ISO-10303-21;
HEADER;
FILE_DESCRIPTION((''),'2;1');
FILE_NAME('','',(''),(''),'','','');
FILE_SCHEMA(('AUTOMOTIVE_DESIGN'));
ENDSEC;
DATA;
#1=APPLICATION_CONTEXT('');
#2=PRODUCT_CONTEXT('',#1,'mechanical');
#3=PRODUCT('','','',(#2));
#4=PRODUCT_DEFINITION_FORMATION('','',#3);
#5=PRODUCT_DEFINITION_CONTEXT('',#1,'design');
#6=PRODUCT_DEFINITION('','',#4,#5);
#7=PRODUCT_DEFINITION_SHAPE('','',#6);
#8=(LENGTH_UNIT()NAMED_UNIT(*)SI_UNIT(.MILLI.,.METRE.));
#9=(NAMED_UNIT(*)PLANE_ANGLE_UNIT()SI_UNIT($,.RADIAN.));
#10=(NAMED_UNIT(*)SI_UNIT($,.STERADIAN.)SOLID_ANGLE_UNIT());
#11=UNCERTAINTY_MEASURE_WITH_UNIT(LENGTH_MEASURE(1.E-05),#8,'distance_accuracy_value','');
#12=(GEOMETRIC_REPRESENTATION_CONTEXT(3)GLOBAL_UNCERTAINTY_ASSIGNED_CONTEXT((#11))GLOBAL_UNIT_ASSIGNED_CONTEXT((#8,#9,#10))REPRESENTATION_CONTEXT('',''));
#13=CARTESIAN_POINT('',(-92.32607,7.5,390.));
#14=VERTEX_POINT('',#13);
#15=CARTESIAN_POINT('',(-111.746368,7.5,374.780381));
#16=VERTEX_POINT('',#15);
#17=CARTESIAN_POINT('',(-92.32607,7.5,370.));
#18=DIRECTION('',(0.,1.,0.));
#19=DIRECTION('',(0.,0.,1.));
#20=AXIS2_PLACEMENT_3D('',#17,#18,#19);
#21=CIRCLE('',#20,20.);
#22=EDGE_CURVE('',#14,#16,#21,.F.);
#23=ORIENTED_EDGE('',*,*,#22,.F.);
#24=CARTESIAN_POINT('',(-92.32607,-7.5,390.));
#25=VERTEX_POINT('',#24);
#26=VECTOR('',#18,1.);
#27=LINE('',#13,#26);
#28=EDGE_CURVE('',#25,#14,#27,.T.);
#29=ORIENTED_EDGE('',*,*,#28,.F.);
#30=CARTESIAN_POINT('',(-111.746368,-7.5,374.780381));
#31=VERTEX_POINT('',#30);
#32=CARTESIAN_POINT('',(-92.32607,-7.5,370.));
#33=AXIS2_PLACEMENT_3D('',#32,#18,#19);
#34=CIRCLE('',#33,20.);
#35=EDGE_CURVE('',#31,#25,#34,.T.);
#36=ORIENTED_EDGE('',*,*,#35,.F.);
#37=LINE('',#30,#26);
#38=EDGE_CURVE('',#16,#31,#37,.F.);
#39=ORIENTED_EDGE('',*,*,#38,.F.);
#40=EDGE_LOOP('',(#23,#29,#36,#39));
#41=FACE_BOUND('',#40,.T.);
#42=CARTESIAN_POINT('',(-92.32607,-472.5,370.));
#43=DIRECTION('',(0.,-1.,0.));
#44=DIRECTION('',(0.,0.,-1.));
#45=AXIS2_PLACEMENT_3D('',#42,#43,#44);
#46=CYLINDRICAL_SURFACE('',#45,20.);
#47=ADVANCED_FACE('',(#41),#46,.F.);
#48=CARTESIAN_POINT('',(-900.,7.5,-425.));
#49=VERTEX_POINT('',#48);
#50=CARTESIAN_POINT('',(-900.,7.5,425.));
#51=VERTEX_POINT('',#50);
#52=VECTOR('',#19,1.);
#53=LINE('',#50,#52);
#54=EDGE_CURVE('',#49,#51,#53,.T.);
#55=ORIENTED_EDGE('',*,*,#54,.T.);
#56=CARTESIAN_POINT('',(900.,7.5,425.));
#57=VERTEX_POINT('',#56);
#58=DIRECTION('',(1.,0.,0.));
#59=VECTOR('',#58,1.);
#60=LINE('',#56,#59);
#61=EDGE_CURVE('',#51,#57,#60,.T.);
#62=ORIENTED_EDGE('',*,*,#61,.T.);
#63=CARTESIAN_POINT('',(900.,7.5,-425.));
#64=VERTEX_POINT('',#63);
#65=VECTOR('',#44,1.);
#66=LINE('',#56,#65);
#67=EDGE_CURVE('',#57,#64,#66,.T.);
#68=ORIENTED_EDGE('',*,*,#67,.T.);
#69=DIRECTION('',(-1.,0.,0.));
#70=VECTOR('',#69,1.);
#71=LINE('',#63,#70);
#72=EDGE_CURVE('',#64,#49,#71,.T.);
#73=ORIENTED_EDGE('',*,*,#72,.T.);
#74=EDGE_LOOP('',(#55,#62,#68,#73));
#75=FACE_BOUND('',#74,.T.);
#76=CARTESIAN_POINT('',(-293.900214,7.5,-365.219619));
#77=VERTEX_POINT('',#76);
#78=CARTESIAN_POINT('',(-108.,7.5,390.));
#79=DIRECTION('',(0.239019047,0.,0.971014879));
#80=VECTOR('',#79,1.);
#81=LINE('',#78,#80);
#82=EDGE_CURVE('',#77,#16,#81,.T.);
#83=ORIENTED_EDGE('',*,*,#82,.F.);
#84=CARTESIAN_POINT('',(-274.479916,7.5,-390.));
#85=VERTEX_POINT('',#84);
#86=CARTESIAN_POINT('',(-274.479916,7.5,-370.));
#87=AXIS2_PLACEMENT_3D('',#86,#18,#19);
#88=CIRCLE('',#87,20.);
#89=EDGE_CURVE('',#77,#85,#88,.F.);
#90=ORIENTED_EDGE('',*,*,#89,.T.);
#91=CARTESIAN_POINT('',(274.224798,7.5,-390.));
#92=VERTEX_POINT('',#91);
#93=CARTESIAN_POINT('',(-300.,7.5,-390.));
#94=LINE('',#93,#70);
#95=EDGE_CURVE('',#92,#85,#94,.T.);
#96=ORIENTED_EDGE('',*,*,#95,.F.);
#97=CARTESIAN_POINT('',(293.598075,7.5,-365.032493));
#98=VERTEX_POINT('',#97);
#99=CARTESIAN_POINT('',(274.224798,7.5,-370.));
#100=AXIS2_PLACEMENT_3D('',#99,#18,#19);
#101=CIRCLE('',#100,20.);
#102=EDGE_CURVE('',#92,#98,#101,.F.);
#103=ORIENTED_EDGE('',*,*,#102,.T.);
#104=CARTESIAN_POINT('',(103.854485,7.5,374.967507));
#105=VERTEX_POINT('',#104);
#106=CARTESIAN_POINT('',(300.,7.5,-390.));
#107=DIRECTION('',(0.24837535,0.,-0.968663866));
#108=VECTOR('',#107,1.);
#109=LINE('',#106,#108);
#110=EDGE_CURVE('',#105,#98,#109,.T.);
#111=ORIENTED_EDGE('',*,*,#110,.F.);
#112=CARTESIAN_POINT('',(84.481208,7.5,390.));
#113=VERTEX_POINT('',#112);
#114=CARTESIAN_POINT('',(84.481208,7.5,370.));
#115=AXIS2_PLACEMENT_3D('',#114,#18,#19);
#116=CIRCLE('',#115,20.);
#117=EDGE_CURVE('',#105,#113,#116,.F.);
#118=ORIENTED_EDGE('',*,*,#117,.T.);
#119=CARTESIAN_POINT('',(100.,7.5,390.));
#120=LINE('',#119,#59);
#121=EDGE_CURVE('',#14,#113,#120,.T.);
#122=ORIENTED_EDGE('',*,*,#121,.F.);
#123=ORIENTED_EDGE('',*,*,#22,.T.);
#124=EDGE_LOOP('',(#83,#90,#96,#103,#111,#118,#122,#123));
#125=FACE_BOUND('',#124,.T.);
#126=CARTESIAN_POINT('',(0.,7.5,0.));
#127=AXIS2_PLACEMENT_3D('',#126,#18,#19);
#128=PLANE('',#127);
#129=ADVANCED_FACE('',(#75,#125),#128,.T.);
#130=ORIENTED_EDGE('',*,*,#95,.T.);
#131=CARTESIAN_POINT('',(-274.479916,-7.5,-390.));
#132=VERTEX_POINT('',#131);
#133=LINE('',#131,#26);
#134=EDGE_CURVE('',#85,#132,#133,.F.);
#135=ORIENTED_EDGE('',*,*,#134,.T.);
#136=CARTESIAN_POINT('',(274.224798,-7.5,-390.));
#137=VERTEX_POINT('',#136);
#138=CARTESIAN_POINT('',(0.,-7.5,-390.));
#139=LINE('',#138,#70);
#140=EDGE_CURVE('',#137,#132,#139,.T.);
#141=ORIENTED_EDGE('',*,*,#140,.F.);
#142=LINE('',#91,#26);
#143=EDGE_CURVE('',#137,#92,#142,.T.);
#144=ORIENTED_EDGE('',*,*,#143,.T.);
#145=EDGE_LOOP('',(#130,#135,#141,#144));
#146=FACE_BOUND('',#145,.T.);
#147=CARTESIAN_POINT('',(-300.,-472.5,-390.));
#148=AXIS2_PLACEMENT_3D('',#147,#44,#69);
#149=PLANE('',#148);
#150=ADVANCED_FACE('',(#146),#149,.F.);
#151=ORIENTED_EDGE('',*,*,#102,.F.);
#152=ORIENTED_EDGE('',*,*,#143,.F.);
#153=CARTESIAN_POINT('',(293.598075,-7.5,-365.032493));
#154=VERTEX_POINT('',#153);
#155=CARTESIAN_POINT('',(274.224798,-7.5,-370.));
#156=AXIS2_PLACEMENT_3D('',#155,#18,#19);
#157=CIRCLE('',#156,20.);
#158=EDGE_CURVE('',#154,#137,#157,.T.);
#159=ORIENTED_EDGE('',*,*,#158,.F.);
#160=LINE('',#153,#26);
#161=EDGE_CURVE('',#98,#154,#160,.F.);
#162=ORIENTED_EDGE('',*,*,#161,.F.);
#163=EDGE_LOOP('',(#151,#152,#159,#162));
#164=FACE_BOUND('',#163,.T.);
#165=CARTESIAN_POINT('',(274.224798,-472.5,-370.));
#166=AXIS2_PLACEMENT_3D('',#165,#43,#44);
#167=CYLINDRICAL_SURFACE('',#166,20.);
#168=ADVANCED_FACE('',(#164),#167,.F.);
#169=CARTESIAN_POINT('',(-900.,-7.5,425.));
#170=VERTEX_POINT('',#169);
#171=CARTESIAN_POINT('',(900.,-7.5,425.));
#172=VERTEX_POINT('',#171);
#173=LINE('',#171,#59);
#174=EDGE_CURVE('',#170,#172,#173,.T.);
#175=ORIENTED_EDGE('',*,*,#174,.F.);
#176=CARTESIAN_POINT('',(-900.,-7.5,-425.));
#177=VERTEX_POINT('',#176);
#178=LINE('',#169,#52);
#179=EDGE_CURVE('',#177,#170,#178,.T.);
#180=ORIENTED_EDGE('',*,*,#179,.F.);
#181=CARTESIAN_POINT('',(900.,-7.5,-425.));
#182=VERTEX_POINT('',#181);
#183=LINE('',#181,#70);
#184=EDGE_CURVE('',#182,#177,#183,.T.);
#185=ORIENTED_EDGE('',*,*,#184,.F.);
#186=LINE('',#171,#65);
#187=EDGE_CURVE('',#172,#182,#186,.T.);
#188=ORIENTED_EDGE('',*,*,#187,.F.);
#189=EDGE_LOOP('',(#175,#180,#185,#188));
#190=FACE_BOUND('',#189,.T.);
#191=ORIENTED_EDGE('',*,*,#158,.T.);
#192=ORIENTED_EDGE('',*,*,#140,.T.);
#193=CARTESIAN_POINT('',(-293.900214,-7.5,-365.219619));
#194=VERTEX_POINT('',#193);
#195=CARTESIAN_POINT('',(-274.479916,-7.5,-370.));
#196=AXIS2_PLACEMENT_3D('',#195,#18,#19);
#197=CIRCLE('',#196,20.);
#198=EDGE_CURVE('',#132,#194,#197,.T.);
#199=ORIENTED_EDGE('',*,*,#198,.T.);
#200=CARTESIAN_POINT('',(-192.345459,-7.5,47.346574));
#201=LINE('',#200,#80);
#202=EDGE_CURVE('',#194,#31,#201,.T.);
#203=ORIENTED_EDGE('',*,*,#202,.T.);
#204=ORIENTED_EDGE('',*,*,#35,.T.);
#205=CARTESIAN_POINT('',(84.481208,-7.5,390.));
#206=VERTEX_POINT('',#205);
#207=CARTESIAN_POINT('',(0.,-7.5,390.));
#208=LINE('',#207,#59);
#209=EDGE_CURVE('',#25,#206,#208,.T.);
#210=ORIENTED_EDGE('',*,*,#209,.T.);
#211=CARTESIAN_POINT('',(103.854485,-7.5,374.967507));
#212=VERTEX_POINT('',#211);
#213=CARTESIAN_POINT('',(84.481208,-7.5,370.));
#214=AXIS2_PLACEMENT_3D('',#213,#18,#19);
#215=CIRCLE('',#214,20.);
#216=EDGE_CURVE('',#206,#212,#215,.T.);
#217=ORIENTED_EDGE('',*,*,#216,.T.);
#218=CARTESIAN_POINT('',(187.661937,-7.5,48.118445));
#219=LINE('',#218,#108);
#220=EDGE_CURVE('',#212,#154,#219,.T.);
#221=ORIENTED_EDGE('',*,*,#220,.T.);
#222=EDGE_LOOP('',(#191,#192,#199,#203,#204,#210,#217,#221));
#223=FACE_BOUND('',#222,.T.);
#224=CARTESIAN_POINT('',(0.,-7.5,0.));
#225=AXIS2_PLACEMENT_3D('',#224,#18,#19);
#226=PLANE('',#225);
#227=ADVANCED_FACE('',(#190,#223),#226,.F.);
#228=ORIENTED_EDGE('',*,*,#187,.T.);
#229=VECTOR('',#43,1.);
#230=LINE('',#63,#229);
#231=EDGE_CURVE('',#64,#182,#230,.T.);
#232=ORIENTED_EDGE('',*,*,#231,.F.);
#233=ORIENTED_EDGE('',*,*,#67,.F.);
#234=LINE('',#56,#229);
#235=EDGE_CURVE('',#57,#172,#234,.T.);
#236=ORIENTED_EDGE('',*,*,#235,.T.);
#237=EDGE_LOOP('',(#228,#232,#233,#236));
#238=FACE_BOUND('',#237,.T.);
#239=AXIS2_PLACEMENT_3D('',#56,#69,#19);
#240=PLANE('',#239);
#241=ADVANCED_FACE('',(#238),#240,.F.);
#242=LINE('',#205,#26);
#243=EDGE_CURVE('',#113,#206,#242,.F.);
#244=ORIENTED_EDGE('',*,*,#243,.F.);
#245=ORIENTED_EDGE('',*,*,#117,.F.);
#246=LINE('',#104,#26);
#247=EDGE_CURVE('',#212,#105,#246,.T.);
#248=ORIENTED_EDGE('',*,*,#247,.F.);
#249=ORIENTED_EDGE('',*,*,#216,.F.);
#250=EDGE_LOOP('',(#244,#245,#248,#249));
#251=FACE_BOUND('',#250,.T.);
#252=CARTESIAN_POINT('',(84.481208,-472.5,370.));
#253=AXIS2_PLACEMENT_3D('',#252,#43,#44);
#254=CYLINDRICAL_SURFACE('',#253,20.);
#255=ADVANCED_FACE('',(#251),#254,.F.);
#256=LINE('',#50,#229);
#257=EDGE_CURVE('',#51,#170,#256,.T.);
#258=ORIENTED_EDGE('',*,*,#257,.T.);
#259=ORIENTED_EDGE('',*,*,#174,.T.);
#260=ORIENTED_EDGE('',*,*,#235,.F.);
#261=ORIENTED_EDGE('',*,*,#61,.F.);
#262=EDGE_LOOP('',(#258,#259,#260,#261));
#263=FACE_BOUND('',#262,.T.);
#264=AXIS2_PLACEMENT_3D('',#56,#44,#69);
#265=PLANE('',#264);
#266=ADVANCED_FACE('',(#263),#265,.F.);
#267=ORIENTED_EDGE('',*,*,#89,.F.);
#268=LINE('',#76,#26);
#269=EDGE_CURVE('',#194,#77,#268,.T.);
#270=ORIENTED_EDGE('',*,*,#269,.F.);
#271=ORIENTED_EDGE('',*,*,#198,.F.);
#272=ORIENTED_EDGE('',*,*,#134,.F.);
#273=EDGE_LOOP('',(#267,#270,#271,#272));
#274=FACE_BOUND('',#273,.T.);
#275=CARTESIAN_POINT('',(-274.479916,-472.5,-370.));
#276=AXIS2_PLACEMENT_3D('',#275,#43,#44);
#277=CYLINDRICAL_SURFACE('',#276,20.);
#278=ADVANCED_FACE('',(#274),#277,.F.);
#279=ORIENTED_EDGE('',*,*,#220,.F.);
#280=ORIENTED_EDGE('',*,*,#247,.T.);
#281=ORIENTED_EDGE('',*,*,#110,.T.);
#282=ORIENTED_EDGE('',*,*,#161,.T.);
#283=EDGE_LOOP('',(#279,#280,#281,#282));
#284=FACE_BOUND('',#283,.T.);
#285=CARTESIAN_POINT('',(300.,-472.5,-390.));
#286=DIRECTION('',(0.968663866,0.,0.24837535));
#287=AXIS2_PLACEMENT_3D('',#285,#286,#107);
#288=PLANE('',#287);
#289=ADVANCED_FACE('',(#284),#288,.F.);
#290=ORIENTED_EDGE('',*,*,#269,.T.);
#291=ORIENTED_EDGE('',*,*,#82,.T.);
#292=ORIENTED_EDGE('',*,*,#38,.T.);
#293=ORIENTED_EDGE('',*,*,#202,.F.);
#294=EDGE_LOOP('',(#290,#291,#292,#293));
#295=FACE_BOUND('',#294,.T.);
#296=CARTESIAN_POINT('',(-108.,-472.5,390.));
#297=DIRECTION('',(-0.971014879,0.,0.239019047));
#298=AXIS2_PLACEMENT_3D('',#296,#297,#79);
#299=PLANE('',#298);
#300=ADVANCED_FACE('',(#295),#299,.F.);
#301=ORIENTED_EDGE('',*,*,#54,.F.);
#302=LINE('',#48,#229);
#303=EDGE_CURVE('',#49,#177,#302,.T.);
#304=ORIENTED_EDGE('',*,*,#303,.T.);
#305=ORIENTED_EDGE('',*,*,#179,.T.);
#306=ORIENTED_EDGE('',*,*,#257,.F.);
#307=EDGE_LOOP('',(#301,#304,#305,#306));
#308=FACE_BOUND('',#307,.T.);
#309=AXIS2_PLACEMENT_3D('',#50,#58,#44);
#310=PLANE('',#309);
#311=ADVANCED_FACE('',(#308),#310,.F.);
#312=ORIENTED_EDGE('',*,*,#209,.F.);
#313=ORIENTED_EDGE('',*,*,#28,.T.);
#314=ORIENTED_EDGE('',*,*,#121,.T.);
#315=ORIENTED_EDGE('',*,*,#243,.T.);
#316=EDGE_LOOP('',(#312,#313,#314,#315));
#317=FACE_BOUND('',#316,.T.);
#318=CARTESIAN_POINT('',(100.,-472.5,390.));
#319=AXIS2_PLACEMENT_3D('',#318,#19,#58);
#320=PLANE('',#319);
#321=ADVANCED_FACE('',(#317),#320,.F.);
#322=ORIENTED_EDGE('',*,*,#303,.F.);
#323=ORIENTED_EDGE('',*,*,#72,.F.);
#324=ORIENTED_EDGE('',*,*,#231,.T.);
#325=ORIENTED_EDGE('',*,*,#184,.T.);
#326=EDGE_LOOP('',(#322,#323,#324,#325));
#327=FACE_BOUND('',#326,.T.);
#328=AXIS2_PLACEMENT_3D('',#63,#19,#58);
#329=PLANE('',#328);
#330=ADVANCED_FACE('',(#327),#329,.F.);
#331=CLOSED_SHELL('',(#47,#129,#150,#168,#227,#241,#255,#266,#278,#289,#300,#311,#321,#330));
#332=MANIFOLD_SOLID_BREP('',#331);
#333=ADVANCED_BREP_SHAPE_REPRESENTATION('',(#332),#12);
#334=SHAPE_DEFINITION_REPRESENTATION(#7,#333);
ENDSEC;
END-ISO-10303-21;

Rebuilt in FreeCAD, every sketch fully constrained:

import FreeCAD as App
import Part
import Sketcher

V = App.Vector
Q = App.Units.Quantity


def edges_at(feature, points):
    """Names of the edges that pass closest to the given points."""
    edges = feature.Shape.Edges
    near = lambda p: min(range(len(edges)), key=lambda i: edges[i].distToShape(Part.Vertex(*p))[0])
    return sorted({f"Edge{near(p) + 1}" for p in points})


def add_polygon(sketch, points):
    """Adds a closed chain of lines whose ends are joined by coincident constraints."""
    first, n = sketch.GeometryCount, len(points)
    for a, b in zip(points, points[1:] + points[:1]):
        sketch.addGeometry(Part.LineSegment(App.Vector(*a, 0), App.Vector(*b, 0)), False)
    for i in range(n):
        sketch.addConstraint(Sketcher.Constraint("Coincident", first + i, 2, first + (i + 1) % n, 1))

doc = App.newDocument("Part")
body = doc.addObject("PartDesign::Body", "Body")

sketch1 = body.newObject("Sketcher::SketchObject", "Sketch")
sketch1.AttachmentSupport = (doc.getObject("XZ_Plane"), [""])
sketch1.MapMode = "FlatFace"
add_polygon(sketch1, [(-900, -425), (-900, 425), (900, 425), (900, -425)])
sketch1.addConstraint([
    Sketcher.Constraint("Vertical", 0),
    Sketcher.Constraint("Horizontal", 1),
    Sketcher.Constraint("Vertical", 2),
    Sketcher.Constraint("Horizontal", 3),
    Sketcher.Constraint("Symmetric", 0, 2, 2, 2, -1, 1),
    Sketcher.Constraint("DistanceX", 1, 1, 1, 2, Q("1800 mm")),
    Sketcher.Constraint("DistanceY", 0, 1, 0, 2, Q("850 mm")),
])
pad1 = body.newObject("PartDesign::Pad", "Pad")
pad1.Profile = sketch1
pad1.Length = 15
pad1.Midplane = True

sketch2 = body.newObject("Sketcher::SketchObject", "Sketch001")
sketch2.AttachmentSupport = (doc.getObject("XZ_Plane"), [""])
sketch2.MapMode = "FlatFace"
sketch2.AttachmentOffset = App.Placement(V(0, 0, -7.5), App.Rotation())
add_polygon(sketch2, [(300, -390), (-300, -390), (-108, 390), (100, 390)])
sketch2.addConstraint([
    Sketcher.Constraint("Horizontal", 0),
    Sketcher.Constraint("Horizontal", 2),
    Sketcher.Constraint("DistanceX", 0, 2, 0, 1, Q("600 mm")),
    Sketcher.Constraint("DistanceX", 2, 1, 2, 2, Q("208 mm")),
    Sketcher.Constraint("DistanceX", 0, 2, -1, 1, Q("300 mm")),
    Sketcher.Constraint("DistanceY", 0, 2, -1, 1, Q("390 mm")),
    Sketcher.Constraint("DistanceX", 1, 2, -1, 1, Q("108 mm")),
    Sketcher.Constraint("DistanceY", -1, 1, 1, 2, Q("390 mm")),
])
pocket1 = body.newObject("PartDesign::Pocket", "Pocket")
pocket1.Profile = sketch2
pocket1.Length = 480
pocket1.Reversed = True
doc.recompute()

fillet = body.newObject("PartDesign::Fillet", "Fillet")
fillet.Base = (pocket1, edges_at(pocket1, [
    (-108, 0, 390),
    (-300, 0, -390),
    (300, 0, -390),
    (100, 0, 390),
]))
fillet.Radius = 20

doc.recompute()
